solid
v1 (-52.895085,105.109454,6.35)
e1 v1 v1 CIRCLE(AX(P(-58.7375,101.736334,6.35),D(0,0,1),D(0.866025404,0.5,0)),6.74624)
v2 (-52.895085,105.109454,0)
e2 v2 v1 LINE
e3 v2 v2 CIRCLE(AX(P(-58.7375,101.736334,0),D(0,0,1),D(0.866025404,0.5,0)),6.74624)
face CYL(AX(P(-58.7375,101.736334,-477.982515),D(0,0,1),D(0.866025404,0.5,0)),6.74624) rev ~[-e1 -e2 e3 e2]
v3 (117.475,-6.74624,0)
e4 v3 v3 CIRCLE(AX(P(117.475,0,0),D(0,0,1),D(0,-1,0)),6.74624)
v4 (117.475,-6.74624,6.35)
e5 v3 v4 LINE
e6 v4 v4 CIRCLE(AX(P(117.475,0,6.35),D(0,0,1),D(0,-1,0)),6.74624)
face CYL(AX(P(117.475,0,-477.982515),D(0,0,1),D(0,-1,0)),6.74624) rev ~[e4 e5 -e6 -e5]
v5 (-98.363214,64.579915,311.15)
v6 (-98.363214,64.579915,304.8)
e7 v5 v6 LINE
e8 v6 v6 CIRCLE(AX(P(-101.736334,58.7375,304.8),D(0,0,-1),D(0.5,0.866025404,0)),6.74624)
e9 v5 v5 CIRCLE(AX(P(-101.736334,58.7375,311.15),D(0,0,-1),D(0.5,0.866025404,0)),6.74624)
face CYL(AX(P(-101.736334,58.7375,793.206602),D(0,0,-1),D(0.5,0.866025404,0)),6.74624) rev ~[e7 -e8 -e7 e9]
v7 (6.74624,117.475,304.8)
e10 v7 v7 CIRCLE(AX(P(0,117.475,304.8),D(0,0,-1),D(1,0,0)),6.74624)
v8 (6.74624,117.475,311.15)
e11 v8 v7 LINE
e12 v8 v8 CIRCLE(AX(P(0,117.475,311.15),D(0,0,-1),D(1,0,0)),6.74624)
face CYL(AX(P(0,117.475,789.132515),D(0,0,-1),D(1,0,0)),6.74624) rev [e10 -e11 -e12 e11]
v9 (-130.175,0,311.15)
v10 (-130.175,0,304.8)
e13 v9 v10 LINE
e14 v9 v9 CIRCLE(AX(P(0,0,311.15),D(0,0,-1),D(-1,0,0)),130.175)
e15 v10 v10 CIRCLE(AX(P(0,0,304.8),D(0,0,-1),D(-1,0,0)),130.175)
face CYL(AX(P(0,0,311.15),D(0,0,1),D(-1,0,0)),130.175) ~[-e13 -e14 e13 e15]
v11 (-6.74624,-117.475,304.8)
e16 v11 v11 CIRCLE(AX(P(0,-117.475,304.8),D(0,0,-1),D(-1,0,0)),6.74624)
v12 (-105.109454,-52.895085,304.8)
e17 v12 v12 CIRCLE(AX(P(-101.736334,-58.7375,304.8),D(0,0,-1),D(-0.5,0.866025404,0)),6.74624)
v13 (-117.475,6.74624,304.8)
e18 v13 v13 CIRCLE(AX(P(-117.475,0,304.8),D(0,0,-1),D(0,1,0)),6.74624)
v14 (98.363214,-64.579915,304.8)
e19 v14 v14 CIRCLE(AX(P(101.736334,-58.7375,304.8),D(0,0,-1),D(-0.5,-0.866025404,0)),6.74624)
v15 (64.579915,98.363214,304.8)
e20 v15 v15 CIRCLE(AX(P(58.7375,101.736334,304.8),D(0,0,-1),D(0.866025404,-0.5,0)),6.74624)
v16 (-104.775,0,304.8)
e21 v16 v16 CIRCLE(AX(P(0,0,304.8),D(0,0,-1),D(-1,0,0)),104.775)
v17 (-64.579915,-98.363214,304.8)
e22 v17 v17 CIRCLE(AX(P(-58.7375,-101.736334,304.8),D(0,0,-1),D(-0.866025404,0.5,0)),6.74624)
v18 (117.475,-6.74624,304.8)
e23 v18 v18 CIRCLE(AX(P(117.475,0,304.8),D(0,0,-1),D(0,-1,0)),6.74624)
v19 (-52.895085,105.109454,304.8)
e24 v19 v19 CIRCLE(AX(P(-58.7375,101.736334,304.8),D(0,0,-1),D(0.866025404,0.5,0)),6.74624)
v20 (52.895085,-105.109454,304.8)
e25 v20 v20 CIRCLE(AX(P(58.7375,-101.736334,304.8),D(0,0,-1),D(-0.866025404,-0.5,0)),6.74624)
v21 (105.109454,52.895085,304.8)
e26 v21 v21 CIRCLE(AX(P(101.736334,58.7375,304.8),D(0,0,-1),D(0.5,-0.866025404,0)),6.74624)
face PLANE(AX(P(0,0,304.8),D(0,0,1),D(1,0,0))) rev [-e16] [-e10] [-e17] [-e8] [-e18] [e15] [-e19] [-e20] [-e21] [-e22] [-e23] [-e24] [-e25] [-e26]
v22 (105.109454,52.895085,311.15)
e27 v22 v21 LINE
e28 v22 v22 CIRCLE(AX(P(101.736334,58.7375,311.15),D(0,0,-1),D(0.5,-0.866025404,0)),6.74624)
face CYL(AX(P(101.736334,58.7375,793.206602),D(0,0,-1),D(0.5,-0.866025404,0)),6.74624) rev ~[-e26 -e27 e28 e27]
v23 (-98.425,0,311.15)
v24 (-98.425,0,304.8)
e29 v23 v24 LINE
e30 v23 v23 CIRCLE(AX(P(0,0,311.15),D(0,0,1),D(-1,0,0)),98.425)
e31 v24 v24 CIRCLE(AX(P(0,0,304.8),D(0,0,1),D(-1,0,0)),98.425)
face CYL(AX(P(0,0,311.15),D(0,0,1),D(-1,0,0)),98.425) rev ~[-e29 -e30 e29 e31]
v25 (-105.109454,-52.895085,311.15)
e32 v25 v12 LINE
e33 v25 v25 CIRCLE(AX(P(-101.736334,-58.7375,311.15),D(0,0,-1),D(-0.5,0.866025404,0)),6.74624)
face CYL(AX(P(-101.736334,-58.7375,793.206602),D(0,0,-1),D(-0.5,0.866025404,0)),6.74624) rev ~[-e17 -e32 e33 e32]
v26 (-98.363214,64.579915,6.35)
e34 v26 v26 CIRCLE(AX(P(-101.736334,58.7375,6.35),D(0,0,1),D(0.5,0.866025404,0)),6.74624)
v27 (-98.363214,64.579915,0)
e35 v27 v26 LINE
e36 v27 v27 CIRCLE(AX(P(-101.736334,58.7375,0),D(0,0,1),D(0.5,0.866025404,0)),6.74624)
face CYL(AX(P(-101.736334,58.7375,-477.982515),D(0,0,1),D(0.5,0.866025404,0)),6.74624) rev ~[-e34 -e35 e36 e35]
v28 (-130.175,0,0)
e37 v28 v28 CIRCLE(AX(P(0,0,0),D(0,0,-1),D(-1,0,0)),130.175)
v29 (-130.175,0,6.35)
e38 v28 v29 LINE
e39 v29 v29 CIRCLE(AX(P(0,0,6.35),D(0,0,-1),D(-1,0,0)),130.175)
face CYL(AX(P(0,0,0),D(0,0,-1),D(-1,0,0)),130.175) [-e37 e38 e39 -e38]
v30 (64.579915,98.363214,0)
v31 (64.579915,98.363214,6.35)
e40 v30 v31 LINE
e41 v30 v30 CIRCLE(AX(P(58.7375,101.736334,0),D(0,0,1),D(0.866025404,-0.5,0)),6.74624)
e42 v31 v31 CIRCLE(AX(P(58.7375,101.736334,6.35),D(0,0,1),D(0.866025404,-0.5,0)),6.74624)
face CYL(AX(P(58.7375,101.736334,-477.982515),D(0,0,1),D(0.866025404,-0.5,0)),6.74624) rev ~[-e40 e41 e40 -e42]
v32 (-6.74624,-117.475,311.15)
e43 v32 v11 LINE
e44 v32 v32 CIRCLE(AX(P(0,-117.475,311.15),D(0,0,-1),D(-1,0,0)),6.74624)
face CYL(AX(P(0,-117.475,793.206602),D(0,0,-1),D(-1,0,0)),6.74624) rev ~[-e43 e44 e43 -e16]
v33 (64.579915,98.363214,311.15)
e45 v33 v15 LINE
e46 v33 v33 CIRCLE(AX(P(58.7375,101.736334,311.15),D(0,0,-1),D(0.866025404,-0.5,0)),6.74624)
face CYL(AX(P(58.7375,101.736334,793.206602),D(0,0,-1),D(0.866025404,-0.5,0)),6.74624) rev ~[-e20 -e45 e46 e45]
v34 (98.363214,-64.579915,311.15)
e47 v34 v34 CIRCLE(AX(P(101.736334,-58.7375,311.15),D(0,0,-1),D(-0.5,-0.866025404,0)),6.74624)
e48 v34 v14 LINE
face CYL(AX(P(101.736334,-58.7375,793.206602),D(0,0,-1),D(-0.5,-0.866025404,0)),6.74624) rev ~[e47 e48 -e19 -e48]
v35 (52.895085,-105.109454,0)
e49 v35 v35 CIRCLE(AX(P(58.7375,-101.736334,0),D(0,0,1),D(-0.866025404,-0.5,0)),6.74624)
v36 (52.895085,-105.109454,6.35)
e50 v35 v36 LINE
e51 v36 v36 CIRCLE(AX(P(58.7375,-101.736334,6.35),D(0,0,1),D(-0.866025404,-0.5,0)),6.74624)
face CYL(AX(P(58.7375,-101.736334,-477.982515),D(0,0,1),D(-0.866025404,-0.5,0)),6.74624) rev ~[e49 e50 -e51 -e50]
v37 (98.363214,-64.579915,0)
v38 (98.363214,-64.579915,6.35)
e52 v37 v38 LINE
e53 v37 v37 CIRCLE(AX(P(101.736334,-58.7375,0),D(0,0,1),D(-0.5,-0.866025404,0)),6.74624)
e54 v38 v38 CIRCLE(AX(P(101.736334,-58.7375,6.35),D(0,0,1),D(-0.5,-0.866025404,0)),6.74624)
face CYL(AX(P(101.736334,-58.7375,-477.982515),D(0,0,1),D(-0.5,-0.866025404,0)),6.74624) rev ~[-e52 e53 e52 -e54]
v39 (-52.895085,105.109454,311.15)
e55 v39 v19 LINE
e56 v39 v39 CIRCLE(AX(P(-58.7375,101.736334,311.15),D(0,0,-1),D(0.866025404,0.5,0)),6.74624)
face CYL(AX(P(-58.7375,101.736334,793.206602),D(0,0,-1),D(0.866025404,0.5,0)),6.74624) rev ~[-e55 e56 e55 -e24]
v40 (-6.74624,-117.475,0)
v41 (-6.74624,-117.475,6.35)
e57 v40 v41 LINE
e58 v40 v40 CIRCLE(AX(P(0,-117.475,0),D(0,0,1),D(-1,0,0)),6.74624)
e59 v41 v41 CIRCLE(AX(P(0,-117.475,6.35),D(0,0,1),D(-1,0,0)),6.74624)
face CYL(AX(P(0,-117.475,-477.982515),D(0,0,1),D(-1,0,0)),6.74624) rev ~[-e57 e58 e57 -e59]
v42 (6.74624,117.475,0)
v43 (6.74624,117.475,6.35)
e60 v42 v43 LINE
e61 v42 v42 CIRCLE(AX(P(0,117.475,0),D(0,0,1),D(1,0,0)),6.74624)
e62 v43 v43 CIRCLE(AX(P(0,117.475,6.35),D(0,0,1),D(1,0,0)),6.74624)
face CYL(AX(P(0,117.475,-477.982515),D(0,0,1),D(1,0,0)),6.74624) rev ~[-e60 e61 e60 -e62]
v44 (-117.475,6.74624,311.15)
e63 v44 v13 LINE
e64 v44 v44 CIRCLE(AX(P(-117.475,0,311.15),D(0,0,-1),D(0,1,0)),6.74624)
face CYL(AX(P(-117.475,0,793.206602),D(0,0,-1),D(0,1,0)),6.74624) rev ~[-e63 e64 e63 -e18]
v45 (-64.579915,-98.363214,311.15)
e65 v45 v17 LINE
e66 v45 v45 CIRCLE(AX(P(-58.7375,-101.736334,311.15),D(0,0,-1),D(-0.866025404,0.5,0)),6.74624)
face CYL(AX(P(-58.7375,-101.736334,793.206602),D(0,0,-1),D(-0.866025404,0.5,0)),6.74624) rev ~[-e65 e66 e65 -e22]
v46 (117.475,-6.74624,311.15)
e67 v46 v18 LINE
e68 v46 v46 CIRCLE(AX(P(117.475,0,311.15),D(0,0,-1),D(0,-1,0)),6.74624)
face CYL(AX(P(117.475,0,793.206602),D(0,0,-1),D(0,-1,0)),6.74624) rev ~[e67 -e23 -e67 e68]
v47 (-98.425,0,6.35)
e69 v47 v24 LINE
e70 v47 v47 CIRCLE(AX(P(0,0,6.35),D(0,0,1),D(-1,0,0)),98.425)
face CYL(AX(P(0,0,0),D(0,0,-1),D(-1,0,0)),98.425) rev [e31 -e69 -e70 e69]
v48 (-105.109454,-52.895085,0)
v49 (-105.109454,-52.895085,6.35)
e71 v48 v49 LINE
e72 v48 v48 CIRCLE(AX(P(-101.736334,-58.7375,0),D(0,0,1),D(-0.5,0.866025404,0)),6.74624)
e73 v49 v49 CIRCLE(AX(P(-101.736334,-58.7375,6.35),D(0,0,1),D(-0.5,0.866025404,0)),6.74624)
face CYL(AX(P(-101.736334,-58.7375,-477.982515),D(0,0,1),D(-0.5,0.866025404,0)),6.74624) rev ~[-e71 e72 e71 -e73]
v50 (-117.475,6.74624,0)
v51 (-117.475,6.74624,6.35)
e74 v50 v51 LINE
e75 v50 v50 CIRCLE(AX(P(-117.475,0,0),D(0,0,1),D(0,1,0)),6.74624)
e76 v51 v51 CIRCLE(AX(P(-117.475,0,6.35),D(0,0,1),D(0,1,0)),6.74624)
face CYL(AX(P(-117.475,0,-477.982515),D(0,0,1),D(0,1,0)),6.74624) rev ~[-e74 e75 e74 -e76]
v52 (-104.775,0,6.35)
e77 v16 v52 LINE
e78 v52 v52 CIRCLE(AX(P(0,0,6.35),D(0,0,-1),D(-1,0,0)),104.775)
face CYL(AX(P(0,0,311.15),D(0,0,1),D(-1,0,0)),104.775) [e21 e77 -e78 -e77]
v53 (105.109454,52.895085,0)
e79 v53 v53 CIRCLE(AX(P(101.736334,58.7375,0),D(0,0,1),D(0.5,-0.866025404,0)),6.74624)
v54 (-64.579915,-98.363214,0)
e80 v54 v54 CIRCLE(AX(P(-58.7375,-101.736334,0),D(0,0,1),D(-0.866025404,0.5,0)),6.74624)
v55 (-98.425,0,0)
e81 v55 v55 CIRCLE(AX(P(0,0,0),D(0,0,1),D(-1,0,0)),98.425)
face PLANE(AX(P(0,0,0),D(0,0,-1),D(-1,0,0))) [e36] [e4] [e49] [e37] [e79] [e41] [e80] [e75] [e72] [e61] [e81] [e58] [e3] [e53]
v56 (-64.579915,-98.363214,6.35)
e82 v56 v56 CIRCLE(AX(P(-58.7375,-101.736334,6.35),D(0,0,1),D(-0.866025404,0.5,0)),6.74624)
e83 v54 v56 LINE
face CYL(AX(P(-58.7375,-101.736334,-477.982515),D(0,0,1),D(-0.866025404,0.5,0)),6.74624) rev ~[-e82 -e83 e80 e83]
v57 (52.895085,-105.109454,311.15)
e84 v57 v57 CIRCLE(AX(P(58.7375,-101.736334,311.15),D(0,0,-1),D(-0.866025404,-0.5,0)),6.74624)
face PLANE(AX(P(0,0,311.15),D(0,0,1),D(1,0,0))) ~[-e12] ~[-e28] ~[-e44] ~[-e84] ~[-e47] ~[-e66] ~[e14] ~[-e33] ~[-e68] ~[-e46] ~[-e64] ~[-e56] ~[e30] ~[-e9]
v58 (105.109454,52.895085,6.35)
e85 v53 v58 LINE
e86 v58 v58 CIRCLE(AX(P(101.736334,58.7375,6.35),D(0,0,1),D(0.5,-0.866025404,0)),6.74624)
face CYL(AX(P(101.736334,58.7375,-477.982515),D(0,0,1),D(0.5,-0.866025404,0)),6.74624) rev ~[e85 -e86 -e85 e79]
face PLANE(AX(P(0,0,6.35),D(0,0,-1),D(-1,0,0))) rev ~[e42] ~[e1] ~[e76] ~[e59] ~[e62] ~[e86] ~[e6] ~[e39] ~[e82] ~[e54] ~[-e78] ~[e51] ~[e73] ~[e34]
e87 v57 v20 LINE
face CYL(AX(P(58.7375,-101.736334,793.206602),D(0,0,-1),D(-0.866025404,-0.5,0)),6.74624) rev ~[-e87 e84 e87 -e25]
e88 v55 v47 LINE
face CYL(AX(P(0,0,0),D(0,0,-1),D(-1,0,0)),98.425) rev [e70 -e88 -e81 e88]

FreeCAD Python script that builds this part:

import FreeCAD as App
import Part
import Sketcher
from FreeCAD import Vector
Q = App.Units.Quantity

doc = App.newDocument("Part")
body = doc.addObject("PartDesign::Body", "Body")

# Sketch on XY plane
sketch1 = body.newObject("Sketcher::SketchObject", "Sketch")
sketch1.AttachmentSupport = (doc.getObject("XY_Plane"), [""])
sketch1.MapMode = "FlatFace"
sketch1.addGeometry([
    Part.Circle(Vector(0, 0, 0), Vector(0, 0, 1), 105),
    Part.Circle(Vector(0, 0, 0), Vector(0, 0, 1), 98),
], False)
sketch1.addConstraint([
    Sketcher.Constraint("Coincident", 0, 3, -1, 1),
    Sketcher.Constraint("Coincident", 1, 3, -1, 1),
    Sketcher.Constraint("Diameter", 0, Q("8.25 in")),
    Sketcher.Constraint("Diameter", 1, Q("7.75 in")),
])
pad1 = body.newObject("PartDesign::Pad", "Pad")
pad1.Profile = sketch1
pad1.Length = Q("12 in")

# Sketch on XY plane
sketch2 = body.newObject("Sketcher::SketchObject", "Sketch001")
sketch2.AttachmentSupport = (doc.getObject("XY_Plane"), [""])
sketch2.MapMode = "FlatFace"
sketch2.addGeometry([
    Part.Circle(Vector(0, 0, 0), Vector(0, 0, 1), 130),
    Part.Circle(Vector(0, 0, 0), Vector(0, 0, 1), 105),
], False)
sketch2.addConstraint([
    Sketcher.Constraint("Coincident", 0, 3, -1, 1),
    Sketcher.Constraint("Coincident", 1, 3, -1, 1),
    Sketcher.Constraint("Diameter", 0, Q("10.25 in")),
    Sketcher.Constraint("Diameter", 1, Q("8.25 in")),
])
pad2 = body.newObject("PartDesign::Pad", "Pad001")
pad2.Profile = sketch2
pad2.Length = Q("0.25 in")

# Sketch on XY plane
sketch3 = body.newObject("Sketcher::SketchObject", "Sketch002")
sketch3.AttachmentSupport = (doc.getObject("XY_Plane"), [""])
sketch3.MapMode = "FlatFace"
sketch3.addGeometry(Part.Circle(Vector(0, 117, 0), Vector(0, 0, 1), 7), False)
sketch3.addConstraint([
    Sketcher.Constraint("PointOnObject", 0, 3, -2),
    Sketcher.Constraint("Diameter", 0, Q("0.5312 in")),
    Sketcher.Constraint("DistanceY", -1, 1, 0, 3, Q("4.625 in")),
])
doc.recompute()
hole = body.newObject("PartDesign::Hole", "Hole")
hole.Profile = sketch3
hole.ThreadType = "None"
hole.Diameter = Q("0.5312 in")
hole.DepthType = "ThroughAll"
hole.Reversed = True
doc.recompute()

polarpattern = body.newObject("PartDesign::PolarPattern", "PolarPattern")
polarpattern.Originals = [hole]
polarpattern.Axis = (doc.getObject("Z_Axis"), [""])
polarpattern.Angle = 360
polarpattern.Occurrences = 12
body.Tip = polarpattern
doc.recompute()

datumplane = body.newObject("PartDesign::Plane", "DatumPlane")
datumplane.AttachmentSupport = (doc.getObject("XY_Plane"), [""])
datumplane.MapMode = "FlatFace"
datumplane.AttachmentOffset = App.Placement(Vector(0, 0, 6.125 * 25.4), App.Rotation())
mirrored = body.newObject("PartDesign::Mirrored", "Mirrored")
mirrored.Originals = [pad1, pad2, hole]
mirrored.MirrorPlane = (datumplane, [""])
body.Tip = mirrored

# Sketch on XY plane
sketch4 = body.newObject("Sketcher::SketchObject", "Sketch003")
sketch4.AttachmentSupport = (doc.getObject("XY_Plane"), [""])
sketch4.MapMode = "FlatFace"
sketch4.AttachmentOffset = App.Placement(Vector(0, 0, 12.25 * 25.4), App.Rotation())
sketch4.addGeometry(Part.Circle(Vector(-59, 102, 0), Vector(0, 0, 1), 7), False)
sketch4.addConstraint([
    Sketcher.Constraint("Diameter", 0, Q("0.5312 in")),
    Sketcher.Constraint("DistanceX", 0, 3, -1, 1, Q("2.3125 in")),
    Sketcher.Constraint("DistanceY", -1, 1, 0, 3, 101.736334),
])
doc.recompute()
hole2 = body.newObject("PartDesign::Hole", "Hole001")
hole2.Profile = sketch4
hole2.ThreadType = "None"
hole2.Diameter = Q("0.5312 in")
hole2.DepthType = "ThroughAll"

# Sketch on XY plane
sketch5 = body.newObject("Sketcher::SketchObject", "Sketch004")
sketch5.AttachmentSupport = (doc.getObject("XY_Plane"), [""])
sketch5.MapMode = "FlatFace"
sketch5.AttachmentOffset = App.Placement(Vector(0, 0, 12.25 * 25.4), App.Rotation())
sketch5.addGeometry(Part.Circle(Vector(-102, 59, 0), Vector(0, 0, 1), 7), False)
sketch5.addConstraint([
    Sketcher.Constraint("Diameter", 0, Q("0.5312 in")),
    Sketcher.Constraint("DistanceY", -1, 1, 0, 3, Q("2.3125 in")),
    Sketcher.Constraint("DistanceX", 0, 3, -1, 1, 101.736334),
])
doc.recompute()
hole3 = body.newObject("PartDesign::Hole", "Hole002")
hole3.Profile = sketch5
hole3.ThreadType = "None"
hole3.Diameter = Q("0.5312 in")
hole3.DepthType = "ThroughAll"

# Sketch on XY plane
sketch6 = body.newObject("Sketcher::SketchObject", "Sketch005")
sketch6.AttachmentSupport = (doc.getObject("XY_Plane"), [""])
sketch6.MapMode = "FlatFace"
sketch6.AttachmentOffset = App.Placement(Vector(0, 0, 12.25 * 25.4), App.Rotation())
sketch6.addGeometry(Part.Circle(Vector(-117, 0, 0), Vector(0, 0, 1), 7), False)
sketch6.addConstraint([
    Sketcher.Constraint("PointOnObject", 0, 3, -1),
    Sketcher.Constraint("Diameter", 0, Q("0.5312 in")),
    Sketcher.Constraint("DistanceX", 0, 3, -1, 1, Q("4.625 in")),
])
doc.recompute()
hole4 = body.newObject("PartDesign::Hole", "Hole003")
hole4.Profile = sketch6
hole4.ThreadType = "None"
hole4.Diameter = Q("0.5312 in")
hole4.DepthType = "ThroughAll"

# Sketch on XY plane
sketch7 = body.newObject("Sketcher::SketchObject", "Sketch006")
sketch7.AttachmentSupport = (doc.getObject("XY_Plane"), [""])
sketch7.MapMode = "FlatFace"
sketch7.AttachmentOffset = App.Placement(Vector(0, 0, 12.25 * 25.4), App.Rotation())
sketch7.addGeometry(Part.Circle(Vector(-102, -59, 0), Vector(0, 0, 1), 7), False)
sketch7.addConstraint([
    Sketcher.Constraint("Diameter", 0, Q("0.5312 in")),
    Sketcher.Constraint("DistanceY", 0, 3, -1, 1, Q("2.3125 in")),
    Sketcher.Constraint("DistanceX", 0, 3, -1, 1, 101.736334),
])
doc.recompute()
hole5 = body.newObject("PartDesign::Hole", "Hole004")
hole5.Profile = sketch7
hole5.ThreadType = "None"
hole5.Diameter = Q("0.5312 in")
hole5.DepthType = "ThroughAll"

# Sketch on XY plane
sketch8 = body.newObject("Sketcher::SketchObject", "Sketch007")
sketch8.AttachmentSupport = (doc.getObject("XY_Plane"), [""])
sketch8.MapMode = "FlatFace"
sketch8.AttachmentOffset = App.Placement(Vector(0, 0, 12.25 * 25.4), App.Rotation())
sketch8.addGeometry(Part.Circle(Vector(-59, -102, 0), Vector(0, 0, 1), 7), False)
sketch8.addConstraint([
    Sketcher.Constraint("Diameter", 0, Q("0.5312 in")),
    Sketcher.Constraint("DistanceX", 0, 3, -1, 1, Q("2.3125 in")),
    Sketcher.Constraint("DistanceY", 0, 3, -1, 1, 101.736334),
])
doc.recompute()
hole6 = body.newObject("PartDesign::Hole", "Hole005")
hole6.Profile = sketch8
hole6.ThreadType = "None"
hole6.Diameter = Q("0.5312 in")
hole6.DepthType = "ThroughAll"

# Sketch on XY plane
sketch9 = body.newObject("Sketcher::SketchObject", "Sketch008")
sketch9.AttachmentSupport = (doc.getObject("XY_Plane"), [""])
sketch9.MapMode = "FlatFace"
sketch9.AttachmentOffset = App.Placement(Vector(0, 0, 12.25 * 25.4), App.Rotation())
sketch9.addGeometry(Part.Circle(Vector(0, -117, 0), Vector(0, 0, 1), 7), False)
sketch9.addConstraint([
    Sketcher.Constraint("PointOnObject", 0, 3, -2),
    Sketcher.Constraint("Diameter", 0, Q("0.5312 in")),
    Sketcher.Constraint("DistanceY", 0, 3, -1, 1, Q("4.625 in")),
])
doc.recompute()
hole7 = body.newObject("PartDesign::Hole", "Hole006")
hole7.Profile = sketch9
hole7.ThreadType = "None"
hole7.Diameter = Q("0.5312 in")
hole7.DepthType = "ThroughAll"

# Sketch on XY plane
sketch10 = body.newObject("Sketcher::SketchObject", "Sketch009")
sketch10.AttachmentSupport = (doc.getObject("XY_Plane"), [""])
sketch10.MapMode = "FlatFace"
sketch10.AttachmentOffset = App.Placement(Vector(0, 0, 12.25 * 25.4), App.Rotation())
sketch10.addGeometry(Part.Circle(Vector(59, -102, 0), Vector(0, 0, 1), 7), False)
sketch10.addConstraint([
    Sketcher.Constraint("Diameter", 0, Q("0.5312 in")),
    Sketcher.Constraint("DistanceX", -1, 1, 0, 3, Q("2.3125 in")),
    Sketcher.Constraint("DistanceY", 0, 3, -1, 1, 101.736334),
])
doc.recompute()
hole8 = body.newObject("PartDesign::Hole", "Hole007")
hole8.Profile = sketch10
hole8.ThreadType = "None"
hole8.Diameter = Q("0.5312 in")
hole8.DepthType = "ThroughAll"

# Sketch on XY plane
sketch11 = body.newObject("Sketcher::SketchObject", "Sketch010")
sketch11.AttachmentSupport = (doc.getObject("XY_Plane"), [""])
sketch11.MapMode = "FlatFace"
sketch11.AttachmentOffset = App.Placement(Vector(0, 0, 12.25 * 25.4), App.Rotation())
sketch11.addGeometry(Part.Circle(Vector(102, -59, 0), Vector(0, 0, 1), 7), False)
sketch11.addConstraint([
    Sketcher.Constraint("Diameter", 0, Q("0.5312 in")),
    Sketcher.Constraint("DistanceY", 0, 3, -1, 1, Q("2.3125 in")),
    Sketcher.Constraint("DistanceX", -1, 1, 0, 3, 101.736334),
])
doc.recompute()
hole9 = body.newObject("PartDesign::Hole", "Hole008")
hole9.Profile = sketch11
hole9.ThreadType = "None"
hole9.Diameter = Q("0.5312 in")
hole9.DepthType = "ThroughAll"

# Sketch on XY plane
sketch12 = body.newObject("Sketcher::SketchObject", "Sketch011")
sketch12.AttachmentSupport = (doc.getObject("XY_Plane"), [""])
sketch12.MapMode = "FlatFace"
sketch12.AttachmentOffset = App.Placement(Vector(0, 0, 12.25 * 25.4), App.Rotation())
sketch12.addGeometry(Part.Circle(Vector(117, 0, 0), Vector(0, 0, 1), 7), False)
sketch12.addConstraint([
    Sketcher.Constraint("PointOnObject", 0, 3, -1),
    Sketcher.Constraint("Diameter", 0, Q("0.5312 in")),
    Sketcher.Constraint("DistanceX", -1, 1, 0, 3, Q("4.625 in")),
])
doc.recompute()
hole10 = body.newObject("PartDesign::Hole", "Hole009")
hole10.Profile = sketch12
hole10.ThreadType = "None"
hole10.Diameter = Q("0.5312 in")
hole10.DepthType = "ThroughAll"

# Sketch on XY plane
sketch13 = body.newObject("Sketcher::SketchObject", "Sketch012")
sketch13.AttachmentSupport = (doc.getObject("XY_Plane"), [""])
sketch13.MapMode = "FlatFace"
sketch13.AttachmentOffset = App.Placement(Vector(0, 0, 12.25 * 25.4), App.Rotation())
sketch13.addGeometry(Part.Circle(Vector(102, 59, 0), Vector(0, 0, 1), 7), False)
sketch13.addConstraint([
    Sketcher.Constraint("Diameter", 0, Q("0.5312 in")),
    Sketcher.Constraint("DistanceY", -1, 1, 0, 3, Q("2.3125 in")),
    Sketcher.Constraint("DistanceX", -1, 1, 0, 3, 101.736334),
])
doc.recompute()
hole11 = body.newObject("PartDesign::Hole", "Hole010")
hole11.Profile = sketch13
hole11.ThreadType = "None"
hole11.Diameter = Q("0.5312 in")
hole11.DepthType = "ThroughAll"

# Sketch on XY plane
sketch14 = body.newObject("Sketcher::SketchObject", "Sketch013")
sketch14.AttachmentSupport = (doc.getObject("XY_Plane"), [""])
sketch14.MapMode = "FlatFace"
sketch14.AttachmentOffset = App.Placement(Vector(0, 0, 12.25 * 25.4), App.Rotation())
sketch14.addGeometry(Part.Circle(Vector(59, 102, 0), Vector(0, 0, 1), 7), False)
sketch14.addConstraint([
    Sketcher.Constraint("Diameter", 0, Q("0.5312 in")),
    Sketcher.Constraint("DistanceX", -1, 1, 0, 3, Q("2.3125 in")),
    Sketcher.Constraint("DistanceY", -1, 1, 0, 3, 101.736334),
])
doc.recompute()
hole12 = body.newObject("PartDesign::Hole", "Hole011")
hole12.Profile = sketch14
hole12.ThreadType = "None"
hole12.Diameter = Q("0.5312 in")
hole12.DepthType = "ThroughAll"

doc.recompute()
